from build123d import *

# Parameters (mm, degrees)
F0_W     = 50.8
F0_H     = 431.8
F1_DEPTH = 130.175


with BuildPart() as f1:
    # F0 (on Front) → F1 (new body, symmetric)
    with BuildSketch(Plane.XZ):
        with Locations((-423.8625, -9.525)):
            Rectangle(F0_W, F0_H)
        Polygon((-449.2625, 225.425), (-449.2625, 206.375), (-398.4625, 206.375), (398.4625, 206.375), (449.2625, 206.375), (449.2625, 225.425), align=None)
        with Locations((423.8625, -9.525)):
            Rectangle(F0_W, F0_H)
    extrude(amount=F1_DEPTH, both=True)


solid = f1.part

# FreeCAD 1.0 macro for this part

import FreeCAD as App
import Part
import Sketcher
from FreeCAD import Vector
Q = App.Units.Quantity

doc = App.newDocument("Part")
body = doc.addObject("PartDesign::Body", "Body")

# Sketch on XZ plane
sketch1 = doc.addObject("Sketcher::SketchObject", "Sketch")
body.addObject(sketch1)
sketch1.AttachmentSupport = (doc.XZ_Plane, [""])
sketch1.MapMode = "FlatFace"
sketch1.addGeometry([
    Part.LineSegment(Vector(-449, -225, 0), Vector(-398, -225, 0)),  # 0
    Part.LineSegment(Vector(-398, -225, 0), Vector(-398, 206, 0)),  # 1
    Part.LineSegment(Vector(-398, 206, 0), Vector(398, 206, 0)),  # 2
    Part.LineSegment(Vector(398, 206, 0), Vector(398, -225, 0)),  # 3
    Part.LineSegment(Vector(398, -225, 0), Vector(449, -225, 0)),  # 4
    Part.LineSegment(Vector(449, -225, 0), Vector(449, 225, 0)),  # 5
    Part.LineSegment(Vector(449, 225, 0), Vector(-449, 225, 0)),  # 6
    Part.LineSegment(Vector(-449, 225, 0), Vector(-449, -225, 0)),  # 7
], False)
sketch1.addConstraint([
    Sketcher.Constraint("Coincident", 0, 2, 1, 1),
    Sketcher.Constraint("Coincident", 1, 2, 2, 1),
    Sketcher.Constraint("Coincident", 2, 2, 3, 1),
    Sketcher.Constraint("Coincident", 3, 2, 4, 1),
    Sketcher.Constraint("Coincident", 4, 2, 5, 1),
    Sketcher.Constraint("Coincident", 5, 2, 6, 1),
    Sketcher.Constraint("Coincident", 6, 2, 7, 1),
    Sketcher.Constraint("Coincident", 7, 2, 0, 1),
    Sketcher.Constraint("Horizontal", 0),
    Sketcher.Constraint("Vertical", 1),
    Sketcher.Constraint("Horizontal", 2),
    Sketcher.Constraint("Vertical", 3),
    Sketcher.Constraint("Horizontal", 4),
    Sketcher.Constraint("Vertical", 5),
    Sketcher.Constraint("Horizontal", 6),
    Sketcher.Constraint("Vertical", 7),
    Sketcher.Constraint("Symmetric", 4, 2, 6, 2, -1, 1),
    Sketcher.Constraint("Symmetric", 0, 2, 3, 2, -2),
    Sketcher.Constraint("DistanceX", 0, 1, 0, 2, Q("2 in")),
    Sketcher.Constraint("DistanceY", 1, 1, 1, 2, Q("17 in")),
    Sketcher.Constraint("DistanceY", 5, 1, 5, 2, Q("17.75 in")),
    Sketcher.Constraint("DistanceX", 2, 1, 2, 2, Q("31.375 in")),
])
pad1 = doc.addObject("PartDesign::Pad", "Pad")
body.addObject(pad1)
pad1.Profile = sketch1
pad1.Length = Q("10.25 in")
pad1.Midplane = True

doc.recompute()
